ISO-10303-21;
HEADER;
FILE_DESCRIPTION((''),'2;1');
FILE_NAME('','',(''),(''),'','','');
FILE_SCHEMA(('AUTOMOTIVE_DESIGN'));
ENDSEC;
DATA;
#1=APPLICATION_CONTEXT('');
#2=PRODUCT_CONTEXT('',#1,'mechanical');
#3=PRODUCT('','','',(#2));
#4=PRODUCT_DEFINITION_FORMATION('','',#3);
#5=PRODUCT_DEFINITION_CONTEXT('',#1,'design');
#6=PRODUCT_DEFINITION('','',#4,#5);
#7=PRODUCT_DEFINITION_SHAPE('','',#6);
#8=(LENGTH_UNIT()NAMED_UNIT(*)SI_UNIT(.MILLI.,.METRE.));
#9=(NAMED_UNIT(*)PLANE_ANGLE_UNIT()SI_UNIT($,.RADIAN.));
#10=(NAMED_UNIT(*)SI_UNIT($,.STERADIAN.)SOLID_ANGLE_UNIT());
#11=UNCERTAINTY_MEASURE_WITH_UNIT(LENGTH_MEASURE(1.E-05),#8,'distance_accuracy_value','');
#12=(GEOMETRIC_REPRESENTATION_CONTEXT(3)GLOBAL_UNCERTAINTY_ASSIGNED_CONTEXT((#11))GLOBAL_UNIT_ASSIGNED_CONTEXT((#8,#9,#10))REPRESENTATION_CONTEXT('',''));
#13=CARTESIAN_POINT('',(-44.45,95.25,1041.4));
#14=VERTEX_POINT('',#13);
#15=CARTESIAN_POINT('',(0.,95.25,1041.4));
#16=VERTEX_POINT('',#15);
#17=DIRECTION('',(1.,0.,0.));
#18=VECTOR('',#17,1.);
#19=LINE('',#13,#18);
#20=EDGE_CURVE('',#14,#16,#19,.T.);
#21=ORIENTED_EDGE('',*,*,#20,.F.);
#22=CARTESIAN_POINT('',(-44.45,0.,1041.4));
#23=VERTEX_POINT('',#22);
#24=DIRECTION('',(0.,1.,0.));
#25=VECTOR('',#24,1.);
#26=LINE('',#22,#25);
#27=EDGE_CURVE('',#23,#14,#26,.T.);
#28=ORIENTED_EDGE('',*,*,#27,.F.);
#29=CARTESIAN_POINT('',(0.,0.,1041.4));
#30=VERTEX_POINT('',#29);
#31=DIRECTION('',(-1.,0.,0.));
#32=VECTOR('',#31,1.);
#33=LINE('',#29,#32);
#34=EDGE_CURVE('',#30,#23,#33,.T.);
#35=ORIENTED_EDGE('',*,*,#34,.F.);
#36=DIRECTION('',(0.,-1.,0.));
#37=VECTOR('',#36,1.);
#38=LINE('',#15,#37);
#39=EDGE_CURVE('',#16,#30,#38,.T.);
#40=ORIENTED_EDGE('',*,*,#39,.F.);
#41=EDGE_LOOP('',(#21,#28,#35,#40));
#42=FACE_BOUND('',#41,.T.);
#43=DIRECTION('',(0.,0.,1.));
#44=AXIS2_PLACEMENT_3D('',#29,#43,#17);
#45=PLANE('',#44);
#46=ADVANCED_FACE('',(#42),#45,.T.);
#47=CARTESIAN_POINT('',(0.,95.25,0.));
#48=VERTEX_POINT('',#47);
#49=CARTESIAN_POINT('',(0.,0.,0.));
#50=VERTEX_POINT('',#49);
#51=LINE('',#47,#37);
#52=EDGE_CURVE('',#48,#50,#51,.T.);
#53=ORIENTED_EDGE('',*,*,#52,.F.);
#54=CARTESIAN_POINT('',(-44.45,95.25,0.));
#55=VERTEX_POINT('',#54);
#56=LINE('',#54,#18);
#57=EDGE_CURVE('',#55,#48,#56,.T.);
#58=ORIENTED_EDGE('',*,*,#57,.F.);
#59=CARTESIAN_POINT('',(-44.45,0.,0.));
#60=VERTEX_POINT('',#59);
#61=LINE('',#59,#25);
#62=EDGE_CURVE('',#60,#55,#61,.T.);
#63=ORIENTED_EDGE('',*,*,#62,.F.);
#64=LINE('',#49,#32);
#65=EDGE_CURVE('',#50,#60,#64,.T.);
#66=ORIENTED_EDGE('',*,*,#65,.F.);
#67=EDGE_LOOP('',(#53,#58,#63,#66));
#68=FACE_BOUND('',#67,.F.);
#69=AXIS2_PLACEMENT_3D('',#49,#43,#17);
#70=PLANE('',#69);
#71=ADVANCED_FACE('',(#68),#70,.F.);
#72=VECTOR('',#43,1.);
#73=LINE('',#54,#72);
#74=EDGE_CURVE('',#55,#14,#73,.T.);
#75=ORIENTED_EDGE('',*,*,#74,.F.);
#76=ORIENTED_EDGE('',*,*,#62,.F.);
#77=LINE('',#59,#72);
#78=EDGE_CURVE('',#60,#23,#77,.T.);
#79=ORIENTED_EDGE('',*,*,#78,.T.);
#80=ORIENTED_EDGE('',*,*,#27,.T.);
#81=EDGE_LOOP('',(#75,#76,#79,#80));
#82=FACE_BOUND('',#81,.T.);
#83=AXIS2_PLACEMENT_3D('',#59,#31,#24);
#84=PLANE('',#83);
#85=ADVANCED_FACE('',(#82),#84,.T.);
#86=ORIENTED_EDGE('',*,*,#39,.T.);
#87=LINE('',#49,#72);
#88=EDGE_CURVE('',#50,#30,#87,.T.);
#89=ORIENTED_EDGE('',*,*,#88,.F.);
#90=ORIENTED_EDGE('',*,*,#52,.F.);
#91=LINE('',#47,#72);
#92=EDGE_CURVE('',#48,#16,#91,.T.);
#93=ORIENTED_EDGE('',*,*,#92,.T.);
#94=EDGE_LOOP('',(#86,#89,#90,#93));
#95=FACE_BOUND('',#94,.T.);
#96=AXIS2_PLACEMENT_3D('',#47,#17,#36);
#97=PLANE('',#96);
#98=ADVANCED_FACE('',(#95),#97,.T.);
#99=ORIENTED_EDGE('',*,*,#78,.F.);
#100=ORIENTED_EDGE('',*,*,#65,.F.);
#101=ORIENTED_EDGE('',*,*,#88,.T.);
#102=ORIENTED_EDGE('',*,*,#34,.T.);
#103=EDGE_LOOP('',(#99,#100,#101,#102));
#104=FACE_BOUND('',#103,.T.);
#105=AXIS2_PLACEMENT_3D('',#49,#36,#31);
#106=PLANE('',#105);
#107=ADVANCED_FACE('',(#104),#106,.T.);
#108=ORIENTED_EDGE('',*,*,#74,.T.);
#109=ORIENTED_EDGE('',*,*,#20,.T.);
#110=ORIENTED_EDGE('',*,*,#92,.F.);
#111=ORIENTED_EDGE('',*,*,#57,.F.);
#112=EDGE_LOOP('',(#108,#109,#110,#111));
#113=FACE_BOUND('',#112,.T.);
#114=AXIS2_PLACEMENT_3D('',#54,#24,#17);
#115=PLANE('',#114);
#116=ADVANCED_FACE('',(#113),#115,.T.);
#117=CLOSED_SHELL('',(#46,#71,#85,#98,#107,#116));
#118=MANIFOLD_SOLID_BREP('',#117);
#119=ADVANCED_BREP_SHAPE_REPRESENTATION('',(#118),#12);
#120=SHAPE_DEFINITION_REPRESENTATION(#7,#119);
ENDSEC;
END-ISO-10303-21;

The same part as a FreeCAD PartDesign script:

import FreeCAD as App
import Part
import Sketcher

V = App.Vector
Q = App.Units.Quantity


def add_polygon(sketch, points):
    """Adds a closed chain of lines whose ends are joined by coincident constraints."""
    first, n = sketch.GeometryCount, len(points)
    for a, b in zip(points, points[1:] + points[:1]):
        sketch.addGeometry(Part.LineSegment(App.Vector(*a, 0), App.Vector(*b, 0)), False)
    for i in range(n):
        sketch.addConstraint(Sketcher.Constraint("Coincident", first + i, 2, first + (i + 1) % n, 1))

doc = App.newDocument("Part")
body = doc.addObject("PartDesign::Body", "Body")

# Sketch on XY plane
sketch1 = body.newObject("Sketcher::SketchObject", "Sketch")
sketch1.AttachmentSupport = (doc.getObject("XY_Plane"), [""])
sketch1.MapMode = "FlatFace"
add_polygon(sketch1, [(-44, 0), (0, 0), (0, 95), (-44, 95)])  # lines 0-3
sketch1.addConstraint([
    Sketcher.Constraint("Horizontal", 0),
    Sketcher.Constraint("Vertical", 1),
    Sketcher.Constraint("Horizontal", 2),
    Sketcher.Constraint("Vertical", 3),
    Sketcher.Constraint("Coincident", 0, 2, -1, 1),
    Sketcher.Constraint("DistanceX", 0, 1, 0, 2, Q("1.75 in")),
    Sketcher.Constraint("DistanceY", 1, 1, 1, 2, Q("3.75 in")),
])
pad1 = body.newObject("PartDesign::Pad", "Pad")
pad1.Profile = sketch1
pad1.Length = Q("41 in")

doc.recompute()
